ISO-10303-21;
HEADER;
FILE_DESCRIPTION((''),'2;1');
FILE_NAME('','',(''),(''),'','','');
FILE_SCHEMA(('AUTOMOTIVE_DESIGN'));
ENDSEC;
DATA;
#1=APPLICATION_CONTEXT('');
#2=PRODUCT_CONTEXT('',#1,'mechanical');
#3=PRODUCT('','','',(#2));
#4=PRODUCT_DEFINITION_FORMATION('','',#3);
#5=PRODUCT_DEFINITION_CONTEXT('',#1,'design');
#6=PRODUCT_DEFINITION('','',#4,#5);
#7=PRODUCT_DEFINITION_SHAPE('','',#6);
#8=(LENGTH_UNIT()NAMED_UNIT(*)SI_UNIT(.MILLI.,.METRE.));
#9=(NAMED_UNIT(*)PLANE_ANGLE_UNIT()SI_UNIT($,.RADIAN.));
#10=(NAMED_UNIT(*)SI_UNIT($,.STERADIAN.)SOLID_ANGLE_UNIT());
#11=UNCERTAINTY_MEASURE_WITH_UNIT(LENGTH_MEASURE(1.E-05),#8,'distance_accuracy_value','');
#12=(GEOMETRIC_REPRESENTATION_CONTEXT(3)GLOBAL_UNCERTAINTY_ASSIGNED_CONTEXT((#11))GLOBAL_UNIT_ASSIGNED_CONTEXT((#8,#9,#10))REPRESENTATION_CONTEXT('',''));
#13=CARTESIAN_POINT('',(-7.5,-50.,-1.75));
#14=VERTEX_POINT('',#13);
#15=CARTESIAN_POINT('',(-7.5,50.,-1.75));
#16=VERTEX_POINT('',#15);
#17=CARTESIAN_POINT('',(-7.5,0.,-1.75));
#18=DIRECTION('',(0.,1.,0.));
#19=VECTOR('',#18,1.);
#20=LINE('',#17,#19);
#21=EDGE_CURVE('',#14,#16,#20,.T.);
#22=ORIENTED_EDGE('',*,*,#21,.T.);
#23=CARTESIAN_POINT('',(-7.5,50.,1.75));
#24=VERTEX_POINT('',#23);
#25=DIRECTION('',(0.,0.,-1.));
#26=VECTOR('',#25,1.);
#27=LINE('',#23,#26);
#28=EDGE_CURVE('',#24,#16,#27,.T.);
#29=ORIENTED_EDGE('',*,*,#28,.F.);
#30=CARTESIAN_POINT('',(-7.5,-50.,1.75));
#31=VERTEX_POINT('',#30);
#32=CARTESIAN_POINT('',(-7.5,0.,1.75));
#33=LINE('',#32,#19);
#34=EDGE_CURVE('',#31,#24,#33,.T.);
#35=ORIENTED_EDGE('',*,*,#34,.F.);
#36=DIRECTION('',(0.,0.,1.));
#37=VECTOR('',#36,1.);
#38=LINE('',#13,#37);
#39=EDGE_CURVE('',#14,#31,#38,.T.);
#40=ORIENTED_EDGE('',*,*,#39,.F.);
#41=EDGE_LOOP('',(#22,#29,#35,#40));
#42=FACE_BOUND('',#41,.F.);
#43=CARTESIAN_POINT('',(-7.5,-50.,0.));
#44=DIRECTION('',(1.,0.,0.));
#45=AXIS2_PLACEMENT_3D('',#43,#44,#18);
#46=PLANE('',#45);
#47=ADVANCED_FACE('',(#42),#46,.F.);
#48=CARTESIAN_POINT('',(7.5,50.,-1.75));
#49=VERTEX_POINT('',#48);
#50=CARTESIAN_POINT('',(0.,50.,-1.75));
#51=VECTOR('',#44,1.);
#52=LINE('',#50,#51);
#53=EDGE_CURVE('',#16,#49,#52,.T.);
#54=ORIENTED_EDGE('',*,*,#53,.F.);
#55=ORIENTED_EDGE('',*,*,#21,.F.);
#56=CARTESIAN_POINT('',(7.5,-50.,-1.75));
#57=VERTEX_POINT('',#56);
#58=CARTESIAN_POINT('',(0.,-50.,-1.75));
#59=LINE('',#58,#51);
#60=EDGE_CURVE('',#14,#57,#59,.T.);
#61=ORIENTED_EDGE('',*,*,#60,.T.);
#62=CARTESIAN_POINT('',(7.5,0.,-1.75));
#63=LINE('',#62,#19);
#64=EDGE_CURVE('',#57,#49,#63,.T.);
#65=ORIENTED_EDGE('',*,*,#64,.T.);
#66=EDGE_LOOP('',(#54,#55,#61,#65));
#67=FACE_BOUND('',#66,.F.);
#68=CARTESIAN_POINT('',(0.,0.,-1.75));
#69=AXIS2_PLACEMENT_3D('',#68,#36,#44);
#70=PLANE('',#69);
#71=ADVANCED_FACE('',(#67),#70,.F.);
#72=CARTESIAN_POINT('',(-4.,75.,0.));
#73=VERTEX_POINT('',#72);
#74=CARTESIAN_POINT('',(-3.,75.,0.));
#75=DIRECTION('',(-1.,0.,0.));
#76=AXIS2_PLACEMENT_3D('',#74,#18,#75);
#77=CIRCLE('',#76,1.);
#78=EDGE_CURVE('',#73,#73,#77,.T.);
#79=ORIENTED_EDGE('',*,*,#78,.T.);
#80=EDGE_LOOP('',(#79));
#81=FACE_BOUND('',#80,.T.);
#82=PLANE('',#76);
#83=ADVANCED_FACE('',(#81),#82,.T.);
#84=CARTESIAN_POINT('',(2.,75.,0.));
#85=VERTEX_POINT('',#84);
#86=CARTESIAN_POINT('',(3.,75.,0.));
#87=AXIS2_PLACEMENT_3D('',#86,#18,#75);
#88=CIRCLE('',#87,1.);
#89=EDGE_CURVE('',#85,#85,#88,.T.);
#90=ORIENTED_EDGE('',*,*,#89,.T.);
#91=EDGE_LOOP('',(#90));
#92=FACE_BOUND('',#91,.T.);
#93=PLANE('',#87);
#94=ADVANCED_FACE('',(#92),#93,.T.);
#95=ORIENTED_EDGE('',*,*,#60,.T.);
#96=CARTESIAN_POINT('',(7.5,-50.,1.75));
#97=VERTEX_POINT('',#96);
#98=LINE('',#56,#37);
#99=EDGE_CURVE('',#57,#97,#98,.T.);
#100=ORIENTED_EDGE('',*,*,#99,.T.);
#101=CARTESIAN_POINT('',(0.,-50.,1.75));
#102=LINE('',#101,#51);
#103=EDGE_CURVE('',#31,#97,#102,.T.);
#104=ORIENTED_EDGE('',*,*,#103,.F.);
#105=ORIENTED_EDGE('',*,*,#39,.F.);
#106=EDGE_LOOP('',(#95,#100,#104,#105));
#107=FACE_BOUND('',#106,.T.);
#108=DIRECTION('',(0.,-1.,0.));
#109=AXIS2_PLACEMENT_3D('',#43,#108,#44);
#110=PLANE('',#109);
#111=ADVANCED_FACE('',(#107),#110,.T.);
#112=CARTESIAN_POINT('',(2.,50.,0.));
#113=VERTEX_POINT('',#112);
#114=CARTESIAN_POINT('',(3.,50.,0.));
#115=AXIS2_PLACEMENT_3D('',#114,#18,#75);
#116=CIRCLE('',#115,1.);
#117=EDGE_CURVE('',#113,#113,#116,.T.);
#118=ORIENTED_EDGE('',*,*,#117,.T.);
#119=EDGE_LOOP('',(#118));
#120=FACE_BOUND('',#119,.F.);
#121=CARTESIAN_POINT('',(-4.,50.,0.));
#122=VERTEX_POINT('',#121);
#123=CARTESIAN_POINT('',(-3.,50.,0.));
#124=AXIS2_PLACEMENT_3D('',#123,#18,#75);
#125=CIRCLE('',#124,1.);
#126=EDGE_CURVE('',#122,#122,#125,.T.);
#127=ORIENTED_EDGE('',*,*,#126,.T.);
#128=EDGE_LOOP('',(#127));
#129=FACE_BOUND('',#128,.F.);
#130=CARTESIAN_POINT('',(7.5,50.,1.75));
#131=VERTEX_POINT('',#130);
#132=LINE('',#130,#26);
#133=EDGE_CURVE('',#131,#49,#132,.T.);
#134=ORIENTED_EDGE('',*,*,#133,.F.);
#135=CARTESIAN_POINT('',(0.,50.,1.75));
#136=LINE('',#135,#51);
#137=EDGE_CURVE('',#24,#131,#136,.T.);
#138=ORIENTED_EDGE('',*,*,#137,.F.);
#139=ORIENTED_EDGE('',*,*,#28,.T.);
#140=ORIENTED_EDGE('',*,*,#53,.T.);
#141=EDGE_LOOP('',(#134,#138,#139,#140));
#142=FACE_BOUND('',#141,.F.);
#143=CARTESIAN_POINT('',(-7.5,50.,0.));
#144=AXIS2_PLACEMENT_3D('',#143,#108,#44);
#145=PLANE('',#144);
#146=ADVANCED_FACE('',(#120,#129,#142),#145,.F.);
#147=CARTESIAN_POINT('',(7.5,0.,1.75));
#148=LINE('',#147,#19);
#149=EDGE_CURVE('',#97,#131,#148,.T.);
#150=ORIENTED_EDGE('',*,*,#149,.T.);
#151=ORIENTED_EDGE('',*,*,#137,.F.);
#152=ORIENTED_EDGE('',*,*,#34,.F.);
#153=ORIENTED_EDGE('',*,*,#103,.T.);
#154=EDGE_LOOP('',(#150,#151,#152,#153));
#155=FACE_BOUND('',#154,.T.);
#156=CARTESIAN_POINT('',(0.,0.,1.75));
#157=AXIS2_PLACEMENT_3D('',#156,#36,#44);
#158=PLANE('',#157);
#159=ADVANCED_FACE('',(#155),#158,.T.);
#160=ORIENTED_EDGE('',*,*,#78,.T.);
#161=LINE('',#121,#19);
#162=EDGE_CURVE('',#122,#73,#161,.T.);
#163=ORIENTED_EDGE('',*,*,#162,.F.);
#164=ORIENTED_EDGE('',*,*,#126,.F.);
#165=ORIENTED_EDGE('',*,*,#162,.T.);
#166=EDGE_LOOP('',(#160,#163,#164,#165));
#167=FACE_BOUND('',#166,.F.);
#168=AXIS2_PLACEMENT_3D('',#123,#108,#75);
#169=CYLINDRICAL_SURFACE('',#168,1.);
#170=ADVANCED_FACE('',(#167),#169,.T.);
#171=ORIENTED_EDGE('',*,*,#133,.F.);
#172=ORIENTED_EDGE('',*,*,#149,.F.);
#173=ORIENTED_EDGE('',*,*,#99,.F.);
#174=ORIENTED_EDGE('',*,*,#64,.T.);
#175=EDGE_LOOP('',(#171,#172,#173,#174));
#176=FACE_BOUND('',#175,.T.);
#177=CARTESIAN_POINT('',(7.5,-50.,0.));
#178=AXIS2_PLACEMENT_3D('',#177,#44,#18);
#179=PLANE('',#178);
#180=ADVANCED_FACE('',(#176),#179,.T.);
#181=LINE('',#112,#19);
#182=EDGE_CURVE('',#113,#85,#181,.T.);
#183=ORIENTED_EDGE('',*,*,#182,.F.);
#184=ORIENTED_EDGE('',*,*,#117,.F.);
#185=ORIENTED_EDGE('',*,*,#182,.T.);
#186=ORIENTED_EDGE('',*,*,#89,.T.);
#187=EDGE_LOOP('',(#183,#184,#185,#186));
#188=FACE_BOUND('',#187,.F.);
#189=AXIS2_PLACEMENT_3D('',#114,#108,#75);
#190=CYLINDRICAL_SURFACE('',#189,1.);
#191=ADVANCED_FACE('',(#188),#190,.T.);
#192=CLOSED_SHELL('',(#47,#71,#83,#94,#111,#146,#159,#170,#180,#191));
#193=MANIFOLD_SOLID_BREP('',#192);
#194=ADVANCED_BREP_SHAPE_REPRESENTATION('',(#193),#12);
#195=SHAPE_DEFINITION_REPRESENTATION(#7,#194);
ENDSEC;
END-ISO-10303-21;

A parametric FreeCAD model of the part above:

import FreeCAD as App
import Part
import Sketcher

V = App.Vector
Q = App.Units.Quantity


def add_polygon(sketch, points):
    """Adds a closed chain of lines whose ends are joined by coincident constraints."""
    first, n = sketch.GeometryCount, len(points)
    for a, b in zip(points, points[1:] + points[:1]):
        sketch.addGeometry(Part.LineSegment(App.Vector(*a, 0), App.Vector(*b, 0)), False)
    for i in range(n):
        sketch.addConstraint(Sketcher.Constraint("Coincident", first + i, 2, first + (i + 1) % n, 1))

doc = App.newDocument("Part")
body = doc.addObject("PartDesign::Body", "Body")

# Sketch on XY plane
sketch1 = body.newObject("Sketcher::SketchObject", "Sketch")
sketch1.AttachmentSupport = (doc.getObject("XY_Plane"), [""])
sketch1.MapMode = "FlatFace"
add_polygon(sketch1, [(-8, 50), (-8, -50), (8, -50), (8, 50)])  # lines 0-3
sketch1.addConstraint(Sketcher.Constraint("Vertical", 0))
sketch1.addConstraint(Sketcher.Constraint("Horizontal", 1))
sketch1.addConstraint(Sketcher.Constraint("Vertical", 2))
sketch1.addConstraint(Sketcher.Constraint("Horizontal", 3))
sketch1.addConstraint(Sketcher.Constraint("Symmetric", 0, 2, 2, 2, -1, 1))
sketch1.addConstraint(Sketcher.Constraint("DistanceX", 1, 1, 1, 2, Q("15 mm")))
sketch1.addConstraint(Sketcher.Constraint("DistanceY", 0, 2, 0, 1, Q("100 mm")))
pad1 = body.newObject("PartDesign::Pad", "Pad")
pad1.Profile = sketch1
pad1.Length = 3.5
pad1.Midplane = True

# Sketch on XZ plane
sketch2 = body.newObject("Sketcher::SketchObject", "Sketch001")
sketch2.AttachmentSupport = (doc.getObject("XZ_Plane"), [""])
sketch2.MapMode = "FlatFace"
sketch2.AttachmentOffset = App.Placement(V(0, 0, -50), App.Rotation())
sketch2.addGeometry(Part.Circle(V(-3, 0, 0), V(0, 0, 1), 1), False)
sketch2.addGeometry(Part.Circle(V(3, 0, 0), V(0, 0, 1), 1), False)
sketch2.addConstraint(Sketcher.Constraint("Equal", 0, 1))
sketch2.addConstraint(Sketcher.Constraint("Symmetric", 0, 3, 1, 3, -1, 1))
sketch2.addConstraint(Sketcher.Constraint("PointOnObject", 0, 3, -1))
sketch2.addConstraint(Sketcher.Constraint("Diameter", 0, Q("2 mm")))
sketch2.addConstraint(Sketcher.Constraint("DistanceX", 0, 3, -1, 1, Q("3 mm")))
pad2 = body.newObject("PartDesign::Pad", "Pad001")
pad2.Profile = sketch2
pad2.Length = 25
pad2.Reversed = True

doc.recompute()
